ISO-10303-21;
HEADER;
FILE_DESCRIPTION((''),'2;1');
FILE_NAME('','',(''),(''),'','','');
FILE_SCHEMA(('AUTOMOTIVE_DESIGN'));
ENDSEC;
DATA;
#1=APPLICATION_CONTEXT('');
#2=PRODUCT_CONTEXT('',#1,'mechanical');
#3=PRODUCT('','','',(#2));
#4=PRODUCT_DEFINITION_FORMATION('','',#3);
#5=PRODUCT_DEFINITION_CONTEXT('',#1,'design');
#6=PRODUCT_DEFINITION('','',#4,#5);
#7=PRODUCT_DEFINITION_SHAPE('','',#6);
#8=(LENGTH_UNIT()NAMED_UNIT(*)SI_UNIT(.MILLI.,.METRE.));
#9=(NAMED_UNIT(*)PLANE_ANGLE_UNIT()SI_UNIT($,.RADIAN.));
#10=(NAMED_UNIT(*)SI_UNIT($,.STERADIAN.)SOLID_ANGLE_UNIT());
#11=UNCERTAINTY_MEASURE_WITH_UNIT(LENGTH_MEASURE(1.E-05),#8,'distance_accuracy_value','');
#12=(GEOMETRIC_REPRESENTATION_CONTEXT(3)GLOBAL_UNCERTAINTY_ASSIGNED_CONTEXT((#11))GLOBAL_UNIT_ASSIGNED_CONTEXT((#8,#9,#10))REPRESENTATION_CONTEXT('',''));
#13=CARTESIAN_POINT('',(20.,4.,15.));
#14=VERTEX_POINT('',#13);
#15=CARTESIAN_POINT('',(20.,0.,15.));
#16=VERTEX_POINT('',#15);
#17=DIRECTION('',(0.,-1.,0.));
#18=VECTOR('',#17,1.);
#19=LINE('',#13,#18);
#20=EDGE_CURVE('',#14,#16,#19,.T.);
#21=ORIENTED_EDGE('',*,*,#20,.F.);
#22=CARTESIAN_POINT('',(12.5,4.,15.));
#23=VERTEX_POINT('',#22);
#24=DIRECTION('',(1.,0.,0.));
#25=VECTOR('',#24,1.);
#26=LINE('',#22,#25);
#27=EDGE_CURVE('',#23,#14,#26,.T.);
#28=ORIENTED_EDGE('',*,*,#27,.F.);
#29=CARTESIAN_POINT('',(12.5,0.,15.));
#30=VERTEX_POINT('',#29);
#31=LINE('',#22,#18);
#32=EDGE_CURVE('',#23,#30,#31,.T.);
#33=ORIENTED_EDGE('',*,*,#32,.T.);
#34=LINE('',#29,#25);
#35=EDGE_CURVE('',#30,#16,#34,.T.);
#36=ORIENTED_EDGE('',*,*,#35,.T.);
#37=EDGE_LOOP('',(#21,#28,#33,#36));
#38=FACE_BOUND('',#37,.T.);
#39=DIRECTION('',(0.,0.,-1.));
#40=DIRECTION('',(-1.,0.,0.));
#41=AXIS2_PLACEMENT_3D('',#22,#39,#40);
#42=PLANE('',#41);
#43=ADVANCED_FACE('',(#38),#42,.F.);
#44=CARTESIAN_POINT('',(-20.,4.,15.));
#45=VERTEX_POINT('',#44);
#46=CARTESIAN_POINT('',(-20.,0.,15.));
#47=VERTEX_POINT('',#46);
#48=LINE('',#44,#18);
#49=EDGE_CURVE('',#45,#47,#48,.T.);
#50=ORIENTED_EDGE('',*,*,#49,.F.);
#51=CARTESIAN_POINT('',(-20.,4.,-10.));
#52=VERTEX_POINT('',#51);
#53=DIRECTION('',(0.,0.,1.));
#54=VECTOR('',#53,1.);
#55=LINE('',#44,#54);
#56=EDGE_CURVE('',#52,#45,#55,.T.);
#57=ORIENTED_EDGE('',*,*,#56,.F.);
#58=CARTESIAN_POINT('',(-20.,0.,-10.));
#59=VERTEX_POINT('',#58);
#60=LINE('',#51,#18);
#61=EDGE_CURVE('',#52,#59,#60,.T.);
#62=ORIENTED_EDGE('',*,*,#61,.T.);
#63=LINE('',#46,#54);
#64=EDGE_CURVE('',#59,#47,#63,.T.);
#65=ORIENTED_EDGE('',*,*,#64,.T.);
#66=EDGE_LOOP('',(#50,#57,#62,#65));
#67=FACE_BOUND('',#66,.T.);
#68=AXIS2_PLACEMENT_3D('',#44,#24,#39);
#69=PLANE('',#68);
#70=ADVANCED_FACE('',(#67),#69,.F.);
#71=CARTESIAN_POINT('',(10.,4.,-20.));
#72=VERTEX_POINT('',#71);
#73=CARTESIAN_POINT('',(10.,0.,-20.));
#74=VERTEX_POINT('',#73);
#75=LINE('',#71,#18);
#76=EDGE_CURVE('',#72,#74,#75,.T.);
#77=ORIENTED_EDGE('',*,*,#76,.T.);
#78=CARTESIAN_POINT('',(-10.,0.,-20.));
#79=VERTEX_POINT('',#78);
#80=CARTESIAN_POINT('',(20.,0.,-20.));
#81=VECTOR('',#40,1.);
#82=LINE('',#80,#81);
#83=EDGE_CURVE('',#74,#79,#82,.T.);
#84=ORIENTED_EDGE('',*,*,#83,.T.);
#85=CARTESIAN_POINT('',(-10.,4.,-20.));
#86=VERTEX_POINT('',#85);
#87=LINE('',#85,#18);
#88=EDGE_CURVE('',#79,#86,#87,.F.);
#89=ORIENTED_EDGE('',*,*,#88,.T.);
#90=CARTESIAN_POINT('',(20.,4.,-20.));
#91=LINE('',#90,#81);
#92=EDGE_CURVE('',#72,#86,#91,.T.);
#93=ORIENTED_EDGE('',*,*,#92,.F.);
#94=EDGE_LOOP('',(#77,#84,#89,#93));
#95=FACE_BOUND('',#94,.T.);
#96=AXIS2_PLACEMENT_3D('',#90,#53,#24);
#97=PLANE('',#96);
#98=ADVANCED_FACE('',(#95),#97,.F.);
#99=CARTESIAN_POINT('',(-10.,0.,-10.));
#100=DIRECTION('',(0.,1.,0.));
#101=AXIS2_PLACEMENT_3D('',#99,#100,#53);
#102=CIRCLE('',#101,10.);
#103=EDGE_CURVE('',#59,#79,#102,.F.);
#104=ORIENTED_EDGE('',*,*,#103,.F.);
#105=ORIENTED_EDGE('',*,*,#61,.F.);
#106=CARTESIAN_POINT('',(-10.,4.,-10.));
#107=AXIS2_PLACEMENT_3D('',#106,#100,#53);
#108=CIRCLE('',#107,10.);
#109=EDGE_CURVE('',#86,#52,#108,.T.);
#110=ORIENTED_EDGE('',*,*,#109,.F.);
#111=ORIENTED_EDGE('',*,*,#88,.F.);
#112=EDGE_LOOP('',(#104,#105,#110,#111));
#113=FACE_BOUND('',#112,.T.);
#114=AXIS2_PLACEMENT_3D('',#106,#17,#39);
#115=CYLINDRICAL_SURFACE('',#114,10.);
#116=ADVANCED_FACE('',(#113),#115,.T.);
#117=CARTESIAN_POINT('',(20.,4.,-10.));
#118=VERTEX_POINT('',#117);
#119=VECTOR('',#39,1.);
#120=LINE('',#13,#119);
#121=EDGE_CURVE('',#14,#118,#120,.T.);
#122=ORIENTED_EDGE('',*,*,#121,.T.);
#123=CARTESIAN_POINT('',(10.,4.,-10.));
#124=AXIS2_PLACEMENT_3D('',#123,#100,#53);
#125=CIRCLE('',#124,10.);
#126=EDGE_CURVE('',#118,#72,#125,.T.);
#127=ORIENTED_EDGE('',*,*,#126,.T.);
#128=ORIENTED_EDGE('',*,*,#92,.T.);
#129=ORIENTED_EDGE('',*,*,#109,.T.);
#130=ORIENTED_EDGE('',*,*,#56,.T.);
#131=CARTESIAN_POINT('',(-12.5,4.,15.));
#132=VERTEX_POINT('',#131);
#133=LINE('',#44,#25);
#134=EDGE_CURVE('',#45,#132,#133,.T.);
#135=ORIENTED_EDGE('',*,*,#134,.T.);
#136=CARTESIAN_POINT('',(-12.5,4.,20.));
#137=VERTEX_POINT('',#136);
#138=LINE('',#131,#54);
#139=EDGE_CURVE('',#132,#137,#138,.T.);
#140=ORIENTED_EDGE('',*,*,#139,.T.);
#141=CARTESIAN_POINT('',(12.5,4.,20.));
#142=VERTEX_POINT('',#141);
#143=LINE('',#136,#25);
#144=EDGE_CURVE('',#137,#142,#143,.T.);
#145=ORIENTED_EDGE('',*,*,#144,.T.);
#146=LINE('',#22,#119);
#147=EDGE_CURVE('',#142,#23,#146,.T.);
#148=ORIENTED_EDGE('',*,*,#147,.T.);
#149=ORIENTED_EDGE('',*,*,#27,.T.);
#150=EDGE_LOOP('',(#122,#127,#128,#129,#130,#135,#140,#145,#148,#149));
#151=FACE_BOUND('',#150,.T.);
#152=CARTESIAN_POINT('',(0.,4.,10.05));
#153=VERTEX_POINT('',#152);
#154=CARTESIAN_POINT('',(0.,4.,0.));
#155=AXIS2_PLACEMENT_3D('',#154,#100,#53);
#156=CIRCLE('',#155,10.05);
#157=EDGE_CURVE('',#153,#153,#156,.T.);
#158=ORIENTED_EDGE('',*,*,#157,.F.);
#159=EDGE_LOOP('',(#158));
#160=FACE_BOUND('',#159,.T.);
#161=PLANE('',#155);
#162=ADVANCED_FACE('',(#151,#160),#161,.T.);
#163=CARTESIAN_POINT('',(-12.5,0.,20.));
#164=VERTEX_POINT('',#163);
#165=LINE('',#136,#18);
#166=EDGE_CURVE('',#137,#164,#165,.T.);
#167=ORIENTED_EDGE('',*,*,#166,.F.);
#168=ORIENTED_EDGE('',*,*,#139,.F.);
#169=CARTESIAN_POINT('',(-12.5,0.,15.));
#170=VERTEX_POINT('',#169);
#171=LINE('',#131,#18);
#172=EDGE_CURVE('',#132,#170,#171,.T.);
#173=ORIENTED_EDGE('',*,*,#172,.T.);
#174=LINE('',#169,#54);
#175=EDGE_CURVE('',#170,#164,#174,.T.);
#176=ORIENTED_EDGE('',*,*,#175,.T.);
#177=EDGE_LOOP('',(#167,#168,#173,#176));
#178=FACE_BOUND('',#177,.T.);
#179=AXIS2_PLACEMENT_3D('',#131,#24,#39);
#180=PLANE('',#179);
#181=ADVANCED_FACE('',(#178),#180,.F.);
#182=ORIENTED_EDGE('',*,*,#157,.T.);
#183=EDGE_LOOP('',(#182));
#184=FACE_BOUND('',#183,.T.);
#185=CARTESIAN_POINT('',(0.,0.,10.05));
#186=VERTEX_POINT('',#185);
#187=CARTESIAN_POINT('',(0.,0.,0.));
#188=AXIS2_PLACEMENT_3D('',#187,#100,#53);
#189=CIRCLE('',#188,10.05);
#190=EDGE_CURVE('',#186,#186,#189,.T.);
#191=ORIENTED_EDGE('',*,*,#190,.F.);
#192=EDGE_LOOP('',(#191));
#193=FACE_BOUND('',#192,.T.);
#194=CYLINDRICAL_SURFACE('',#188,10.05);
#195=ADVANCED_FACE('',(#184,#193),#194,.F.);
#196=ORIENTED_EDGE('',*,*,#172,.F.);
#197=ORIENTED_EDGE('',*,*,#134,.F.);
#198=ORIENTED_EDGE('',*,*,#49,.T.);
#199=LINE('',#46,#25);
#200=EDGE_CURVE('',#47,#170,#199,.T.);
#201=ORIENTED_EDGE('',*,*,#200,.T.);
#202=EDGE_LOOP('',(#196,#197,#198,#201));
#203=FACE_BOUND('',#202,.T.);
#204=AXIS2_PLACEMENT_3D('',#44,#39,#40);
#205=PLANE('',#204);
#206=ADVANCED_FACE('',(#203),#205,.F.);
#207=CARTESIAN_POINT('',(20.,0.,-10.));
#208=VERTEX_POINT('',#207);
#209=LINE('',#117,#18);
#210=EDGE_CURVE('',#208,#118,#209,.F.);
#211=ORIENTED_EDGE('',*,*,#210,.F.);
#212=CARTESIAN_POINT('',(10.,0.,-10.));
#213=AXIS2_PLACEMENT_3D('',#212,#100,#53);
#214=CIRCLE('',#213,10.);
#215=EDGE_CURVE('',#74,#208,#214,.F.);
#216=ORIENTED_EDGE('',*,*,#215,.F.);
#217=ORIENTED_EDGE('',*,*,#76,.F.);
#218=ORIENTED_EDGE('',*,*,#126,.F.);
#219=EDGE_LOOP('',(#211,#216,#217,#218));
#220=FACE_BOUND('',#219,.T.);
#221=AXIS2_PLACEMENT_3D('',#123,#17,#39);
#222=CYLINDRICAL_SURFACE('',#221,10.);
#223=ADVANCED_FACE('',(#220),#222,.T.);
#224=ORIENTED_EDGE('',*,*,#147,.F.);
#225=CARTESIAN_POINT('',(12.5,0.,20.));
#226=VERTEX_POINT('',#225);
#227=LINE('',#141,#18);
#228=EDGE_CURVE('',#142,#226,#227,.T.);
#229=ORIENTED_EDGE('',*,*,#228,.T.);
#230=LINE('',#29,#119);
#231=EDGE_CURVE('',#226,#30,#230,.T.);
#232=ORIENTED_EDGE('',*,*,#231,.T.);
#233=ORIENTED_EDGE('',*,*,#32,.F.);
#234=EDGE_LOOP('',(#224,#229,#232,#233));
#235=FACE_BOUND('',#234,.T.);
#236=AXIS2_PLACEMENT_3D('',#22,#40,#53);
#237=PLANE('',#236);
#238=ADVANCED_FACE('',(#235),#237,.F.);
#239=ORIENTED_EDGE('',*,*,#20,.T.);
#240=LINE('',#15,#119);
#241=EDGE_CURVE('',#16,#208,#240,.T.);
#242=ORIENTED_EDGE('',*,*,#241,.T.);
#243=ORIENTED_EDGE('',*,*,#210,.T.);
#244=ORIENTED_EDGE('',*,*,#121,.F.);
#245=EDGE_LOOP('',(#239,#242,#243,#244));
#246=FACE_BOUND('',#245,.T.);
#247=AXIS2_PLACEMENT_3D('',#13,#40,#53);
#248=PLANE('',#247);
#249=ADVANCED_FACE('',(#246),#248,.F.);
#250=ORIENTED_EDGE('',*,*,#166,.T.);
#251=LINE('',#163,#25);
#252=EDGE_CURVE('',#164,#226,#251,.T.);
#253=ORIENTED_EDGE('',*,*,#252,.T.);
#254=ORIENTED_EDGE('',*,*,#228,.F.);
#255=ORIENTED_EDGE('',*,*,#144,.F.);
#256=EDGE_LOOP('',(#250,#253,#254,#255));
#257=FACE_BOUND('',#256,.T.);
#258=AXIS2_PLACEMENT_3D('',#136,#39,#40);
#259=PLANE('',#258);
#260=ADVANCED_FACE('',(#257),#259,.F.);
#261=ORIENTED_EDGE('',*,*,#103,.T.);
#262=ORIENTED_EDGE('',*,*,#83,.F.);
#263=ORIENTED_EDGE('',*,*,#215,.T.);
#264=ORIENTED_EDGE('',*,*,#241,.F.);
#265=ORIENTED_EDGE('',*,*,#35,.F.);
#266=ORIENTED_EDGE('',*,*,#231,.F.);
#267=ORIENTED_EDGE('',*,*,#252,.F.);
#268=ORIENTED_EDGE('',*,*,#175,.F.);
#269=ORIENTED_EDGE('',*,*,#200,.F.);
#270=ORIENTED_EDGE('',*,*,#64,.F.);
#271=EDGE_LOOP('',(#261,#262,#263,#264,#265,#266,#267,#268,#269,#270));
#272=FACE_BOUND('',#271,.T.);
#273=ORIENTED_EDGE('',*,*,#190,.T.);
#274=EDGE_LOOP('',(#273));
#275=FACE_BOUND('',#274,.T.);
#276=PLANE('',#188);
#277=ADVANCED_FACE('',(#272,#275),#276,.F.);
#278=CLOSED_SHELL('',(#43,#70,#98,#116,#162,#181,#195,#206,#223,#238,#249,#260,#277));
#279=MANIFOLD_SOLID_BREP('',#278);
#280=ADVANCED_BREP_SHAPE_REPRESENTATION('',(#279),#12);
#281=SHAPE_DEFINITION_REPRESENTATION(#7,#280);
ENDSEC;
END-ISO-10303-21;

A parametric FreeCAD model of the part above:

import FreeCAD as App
import Part
import Sketcher
from FreeCAD import Vector
Q = App.Units.Quantity


def edges_at(feature, points):
    """Names of the edges that pass closest to the given points."""
    edges = feature.Shape.Edges
    near = lambda p: min(range(len(edges)), key=lambda i: edges[i].distToShape(Part.Vertex(*p))[0])
    return sorted({f"Edge{near(p) + 1}" for p in points})


def add_polygon(sketch, points):
    """Adds a closed chain of lines whose ends are joined by coincident constraints."""
    first, n = sketch.GeometryCount, len(points)
    for a, b in zip(points, points[1:] + points[:1]):
        sketch.addGeometry(Part.LineSegment(App.Vector(*a, 0), App.Vector(*b, 0)), False)
    for i in range(n):
        sketch.addConstraint(Sketcher.Constraint("Coincident", first + i, 2, first + (i + 1) % n, 1))

doc = App.newDocument("Part")
params = doc.addObject("Spreadsheet::Sheet", "Params")
for row, (alias, value) in enumerate([
    ("sketch1_width", "25 mm"),
    ("sketch1_width2", "40 mm"),
    ("sketch1_height", "5 mm"),
    ("sketch1_height2", "35 mm"),
    ("pad1_length", "4 mm"),
    ("sketch2_diameter", "20.1 mm"),
    ("fillet_radius", "10 mm"),
], start=1):
    params.set(f"A{row}", alias)
    params.set(f"B{row}", "=" + value)
    params.setAlias(f"B{row}", alias)

body = doc.addObject("PartDesign::Body", "Body")

sketch1 = body.newObject("Sketcher::SketchObject", "Sketch")
sketch1.AttachmentSupport = (doc.getObject("XZ_Plane"), [""])
sketch1.MapMode = "FlatFace"
add_polygon(sketch1, [(-20, 15), (-12.5, 15), (-12.5, 20), (12.5, 20), (12.5, 15), (20, 15), (20, -20), (-20, -20)])
sketch1.addConstraint([
    Sketcher.Constraint("Horizontal", 0),
    Sketcher.Constraint("Vertical", 1),
    Sketcher.Constraint("Horizontal", 2),
    Sketcher.Constraint("Vertical", 3),
    Sketcher.Constraint("Horizontal", 4),
    Sketcher.Constraint("Vertical", 5),
    Sketcher.Constraint("Horizontal", 6),
    Sketcher.Constraint("Vertical", 7),
    Sketcher.Constraint("Symmetric", 0, 2, 3, 2, -2),
    Sketcher.Constraint("Equal", 0, 4),
    Sketcher.Constraint("DistanceX", 2, 1, 2, 2, Q("25 mm")),
    Sketcher.Constraint("DistanceX", 6, 2, 6, 1, Q("40 mm")),
    Sketcher.Constraint("DistanceY", 1, 1, 1, 2, Q("5 mm")),
    Sketcher.Constraint("DistanceY", 5, 2, 5, 1, Q("35 mm")),
    Sketcher.Constraint("DistanceY", -1, 1, 0, 2, Q("15 mm")),
])
sketch1.setExpression("Constraints[18]", "Params.sketch1_width")
sketch1.setExpression("Constraints[19]", "Params.sketch1_width2")
sketch1.setExpression("Constraints[20]", "Params.sketch1_height")
sketch1.setExpression("Constraints[21]", "Params.sketch1_height2")
pad1 = body.newObject("PartDesign::Pad", "Pad")
pad1.Profile = sketch1
pad1.setExpression("Length", "Params.pad1_length")
pad1.Reversed = True

sketch2 = body.newObject("Sketcher::SketchObject", "Sketch001")
sketch2.AttachmentSupport = (doc.getObject("XZ_Plane"), [""])
sketch2.MapMode = "FlatFace"
sketch2.AttachmentOffset = App.Placement(Vector(0, 0, -4), App.Rotation())
sketch2.addGeometry(Part.Circle(Vector(0, 0, 0), Vector(0, 0, 1), 10.05), False)
sketch2.addConstraint([
    Sketcher.Constraint("Coincident", 0, 3, -1, 1),
    Sketcher.Constraint("Diameter", 0, Q("20.1 mm")),
])
sketch2.setExpression("Constraints[1]", "Params.sketch2_diameter")
pocket1 = body.newObject("PartDesign::Pocket", "Pocket")
pocket1.Profile = sketch2
pocket1.Type = "ThroughAll"
pocket1.Reversed = True
doc.recompute()

fillet = body.newObject("PartDesign::Fillet", "Fillet")
fillet.Base = (pocket1, edges_at(pocket1, [(-20, 2, -20), (20, 2, -20)]))
fillet.setExpression("Radius", "Params.fillet_radius")

doc.recompute()
